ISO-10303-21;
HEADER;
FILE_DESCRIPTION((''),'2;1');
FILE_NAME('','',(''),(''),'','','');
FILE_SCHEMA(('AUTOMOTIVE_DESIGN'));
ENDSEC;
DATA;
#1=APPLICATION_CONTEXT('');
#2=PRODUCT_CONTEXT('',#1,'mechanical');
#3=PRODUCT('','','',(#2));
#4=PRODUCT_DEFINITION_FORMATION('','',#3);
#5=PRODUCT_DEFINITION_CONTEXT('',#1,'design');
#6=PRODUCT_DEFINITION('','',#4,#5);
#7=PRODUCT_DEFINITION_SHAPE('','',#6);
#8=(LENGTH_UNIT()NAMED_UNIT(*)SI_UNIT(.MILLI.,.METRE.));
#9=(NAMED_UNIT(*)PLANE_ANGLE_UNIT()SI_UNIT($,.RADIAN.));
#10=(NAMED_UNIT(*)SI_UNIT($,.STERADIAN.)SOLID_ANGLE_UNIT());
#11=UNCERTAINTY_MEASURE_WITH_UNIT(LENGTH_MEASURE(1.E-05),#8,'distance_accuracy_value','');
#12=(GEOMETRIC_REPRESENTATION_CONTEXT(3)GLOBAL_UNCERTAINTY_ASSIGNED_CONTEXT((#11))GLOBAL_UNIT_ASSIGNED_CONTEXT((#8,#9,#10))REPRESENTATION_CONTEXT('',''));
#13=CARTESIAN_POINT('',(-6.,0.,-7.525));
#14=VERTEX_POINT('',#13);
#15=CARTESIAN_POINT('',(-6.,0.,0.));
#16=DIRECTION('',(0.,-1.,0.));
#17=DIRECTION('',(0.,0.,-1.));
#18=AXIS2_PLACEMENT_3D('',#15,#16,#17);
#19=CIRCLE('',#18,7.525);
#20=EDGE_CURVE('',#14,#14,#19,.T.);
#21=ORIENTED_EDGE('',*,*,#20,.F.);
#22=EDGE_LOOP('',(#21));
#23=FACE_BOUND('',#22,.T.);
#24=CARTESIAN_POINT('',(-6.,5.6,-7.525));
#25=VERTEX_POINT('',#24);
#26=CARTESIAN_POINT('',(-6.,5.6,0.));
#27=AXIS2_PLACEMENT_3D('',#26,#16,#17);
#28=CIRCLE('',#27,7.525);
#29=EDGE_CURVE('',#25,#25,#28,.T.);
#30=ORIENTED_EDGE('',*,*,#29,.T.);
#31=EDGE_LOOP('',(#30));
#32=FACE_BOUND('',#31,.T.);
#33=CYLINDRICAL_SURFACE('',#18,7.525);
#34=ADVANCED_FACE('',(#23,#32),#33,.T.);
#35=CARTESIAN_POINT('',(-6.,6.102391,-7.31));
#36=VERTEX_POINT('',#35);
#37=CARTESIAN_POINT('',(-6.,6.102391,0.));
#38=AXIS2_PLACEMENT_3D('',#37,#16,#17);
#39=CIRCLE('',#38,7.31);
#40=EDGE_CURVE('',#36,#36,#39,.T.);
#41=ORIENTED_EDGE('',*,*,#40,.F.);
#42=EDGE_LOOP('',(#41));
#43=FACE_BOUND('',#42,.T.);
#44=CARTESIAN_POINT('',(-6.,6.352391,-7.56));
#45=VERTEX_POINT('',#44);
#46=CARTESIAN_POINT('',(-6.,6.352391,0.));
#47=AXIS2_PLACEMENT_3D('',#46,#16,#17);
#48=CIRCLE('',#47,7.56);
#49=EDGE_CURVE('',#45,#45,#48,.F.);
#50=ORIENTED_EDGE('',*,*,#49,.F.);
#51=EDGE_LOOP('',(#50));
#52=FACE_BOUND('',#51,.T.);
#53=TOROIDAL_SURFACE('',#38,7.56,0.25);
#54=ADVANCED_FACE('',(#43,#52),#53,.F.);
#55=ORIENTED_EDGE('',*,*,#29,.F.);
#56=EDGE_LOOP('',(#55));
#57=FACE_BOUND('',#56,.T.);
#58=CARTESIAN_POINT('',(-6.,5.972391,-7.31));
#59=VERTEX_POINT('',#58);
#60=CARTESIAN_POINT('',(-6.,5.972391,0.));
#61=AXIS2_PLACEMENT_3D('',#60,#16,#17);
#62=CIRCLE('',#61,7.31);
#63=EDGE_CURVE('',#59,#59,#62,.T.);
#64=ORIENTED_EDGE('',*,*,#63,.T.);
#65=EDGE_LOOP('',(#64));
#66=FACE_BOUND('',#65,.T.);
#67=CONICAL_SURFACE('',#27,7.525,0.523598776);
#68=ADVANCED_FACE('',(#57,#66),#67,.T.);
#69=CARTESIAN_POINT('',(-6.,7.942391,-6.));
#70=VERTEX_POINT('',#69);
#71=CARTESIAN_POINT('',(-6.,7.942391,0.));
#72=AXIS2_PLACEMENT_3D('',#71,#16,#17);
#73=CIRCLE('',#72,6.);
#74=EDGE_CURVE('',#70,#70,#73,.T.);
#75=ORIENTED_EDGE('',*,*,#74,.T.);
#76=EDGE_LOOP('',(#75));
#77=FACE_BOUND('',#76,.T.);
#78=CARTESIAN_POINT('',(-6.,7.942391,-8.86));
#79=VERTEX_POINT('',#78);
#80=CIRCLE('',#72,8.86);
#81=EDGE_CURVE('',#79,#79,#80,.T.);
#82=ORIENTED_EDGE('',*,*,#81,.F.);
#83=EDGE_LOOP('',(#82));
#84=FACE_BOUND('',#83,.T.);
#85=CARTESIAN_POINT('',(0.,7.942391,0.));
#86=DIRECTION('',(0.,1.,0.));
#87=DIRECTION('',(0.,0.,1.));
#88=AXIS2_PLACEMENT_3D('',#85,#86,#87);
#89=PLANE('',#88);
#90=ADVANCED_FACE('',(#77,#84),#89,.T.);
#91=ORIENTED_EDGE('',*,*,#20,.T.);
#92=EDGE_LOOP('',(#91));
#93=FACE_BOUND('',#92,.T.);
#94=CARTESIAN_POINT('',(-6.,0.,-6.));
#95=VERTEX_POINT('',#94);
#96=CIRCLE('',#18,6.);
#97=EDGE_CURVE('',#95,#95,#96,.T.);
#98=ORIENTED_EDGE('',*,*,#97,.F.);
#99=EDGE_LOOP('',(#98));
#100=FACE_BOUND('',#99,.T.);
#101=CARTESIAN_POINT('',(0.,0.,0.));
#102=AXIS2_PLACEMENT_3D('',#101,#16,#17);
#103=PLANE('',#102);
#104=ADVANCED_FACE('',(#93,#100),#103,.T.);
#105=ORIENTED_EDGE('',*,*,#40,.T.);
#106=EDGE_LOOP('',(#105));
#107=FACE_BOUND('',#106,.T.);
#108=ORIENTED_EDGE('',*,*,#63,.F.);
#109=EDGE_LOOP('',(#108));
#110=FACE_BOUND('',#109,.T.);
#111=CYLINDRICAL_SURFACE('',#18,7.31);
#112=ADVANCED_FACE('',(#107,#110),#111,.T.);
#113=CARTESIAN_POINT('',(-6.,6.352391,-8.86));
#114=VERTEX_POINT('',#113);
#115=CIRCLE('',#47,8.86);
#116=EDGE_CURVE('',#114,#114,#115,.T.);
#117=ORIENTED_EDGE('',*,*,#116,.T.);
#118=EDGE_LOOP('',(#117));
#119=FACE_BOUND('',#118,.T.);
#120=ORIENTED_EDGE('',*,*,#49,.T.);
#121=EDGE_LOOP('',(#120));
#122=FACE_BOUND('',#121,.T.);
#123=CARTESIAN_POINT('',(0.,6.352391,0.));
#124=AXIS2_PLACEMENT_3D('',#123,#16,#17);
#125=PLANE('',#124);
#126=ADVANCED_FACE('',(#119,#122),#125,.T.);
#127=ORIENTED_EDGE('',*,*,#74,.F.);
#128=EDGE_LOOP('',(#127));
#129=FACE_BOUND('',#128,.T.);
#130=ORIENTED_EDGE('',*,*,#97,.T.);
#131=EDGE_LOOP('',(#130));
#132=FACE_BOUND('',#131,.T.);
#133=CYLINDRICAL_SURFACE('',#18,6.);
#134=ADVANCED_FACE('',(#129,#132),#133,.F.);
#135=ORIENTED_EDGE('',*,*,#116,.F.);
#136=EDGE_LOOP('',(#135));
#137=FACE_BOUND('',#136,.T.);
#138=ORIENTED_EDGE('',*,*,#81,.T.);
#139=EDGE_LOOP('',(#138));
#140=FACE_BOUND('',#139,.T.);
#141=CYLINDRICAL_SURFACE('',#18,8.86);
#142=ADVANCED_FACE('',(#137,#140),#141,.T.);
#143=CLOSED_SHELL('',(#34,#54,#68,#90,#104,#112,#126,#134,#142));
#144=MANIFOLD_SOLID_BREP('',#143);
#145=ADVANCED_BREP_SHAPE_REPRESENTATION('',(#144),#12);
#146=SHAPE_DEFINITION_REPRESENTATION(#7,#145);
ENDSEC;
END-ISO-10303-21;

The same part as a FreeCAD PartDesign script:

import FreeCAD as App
import Part
import Sketcher
Q = App.Units.Quantity


def edges_at(feature, points):
    """Names of the edges that pass closest to the given points."""
    edges = feature.Shape.Edges
    near = lambda p: min(range(len(edges)), key=lambda i: edges[i].distToShape(Part.Vertex(*p))[0])
    return sorted({f"Edge{near(p) + 1}" for p in points})


def add_polygon(sketch, points):
    """Adds a closed chain of lines whose ends are joined by coincident constraints."""
    first, n = sketch.GeometryCount, len(points)
    for a, b in zip(points, points[1:] + points[:1]):
        sketch.addGeometry(Part.LineSegment(App.Vector(*a, 0), App.Vector(*b, 0)), False)
    for i in range(n):
        sketch.addConstraint(Sketcher.Constraint("Coincident", first + i, 2, first + (i + 1) % n, 1))

doc = App.newDocument("Part")
body = doc.addObject("PartDesign::Body", "Body")

sketch1 = body.newObject("Sketcher::SketchObject", "Sketch")
sketch1.AttachmentSupport = (doc.getObject("XY_Plane"), [""])
sketch1.MapMode = "FlatFace"
add_polygon(sketch1, [(0, 0), (1.52, 0), (1.52, 5.6), (1.31, 5.97), (1.31, 6.35), (2.86, 6.35), (2.86, 7.94), (0, 7.94)])
sketch1.addGeometry(Part.LineSegment(App.Vector(-6, 0, 0), App.Vector(-6, 7.94, 0)), True)
sketch1.addConstraint(Sketcher.Constraint("Horizontal", 0))
sketch1.addConstraint(Sketcher.Constraint("Vertical", 1))
sketch1.addConstraint(Sketcher.Constraint("Vertical", 3))
sketch1.addConstraint(Sketcher.Constraint("Horizontal", 4))
sketch1.addConstraint(Sketcher.Constraint("Vertical", 5))
sketch1.addConstraint(Sketcher.Constraint("Horizontal", 6))
sketch1.addConstraint(Sketcher.Constraint("Vertical", 7))
sketch1.addConstraint(Sketcher.Constraint("Vertical", 8))
sketch1.addConstraint(Sketcher.Constraint("Coincident", 7, 2, -1, 1))
sketch1.addConstraint(Sketcher.Constraint("PointOnObject", 8, 1, -1))
sketch1.addConstraint(Sketcher.Constraint("Horizontal", 6, 2, 8, 2))
sketch1.addConstraint(Sketcher.Constraint("Angle", 2, Q("120 deg")))
sketch1.addConstraint(Sketcher.Constraint("DistanceY", 1, 1, 1, 2, 5.6))
sketch1.addConstraint(Sketcher.Constraint("DistanceX", 8, 1, -1, 1, 6.0))
sketch1.addConstraint(Sketcher.Constraint("DistanceX", 4, 1, 4, 2, 1.55))
sketch1.addConstraint(Sketcher.Constraint("DistanceX", 6, 2, 6, 1, 2.86))
sketch1.addConstraint(Sketcher.Constraint("DistanceY", 3, 1, 3, 2, 0.38))
sketch1.addConstraint(Sketcher.Constraint("DistanceY", 5, 1, 5, 2, 1.59))
sketch1.addConstraint(Sketcher.Constraint("Distance", 2, 0.43))
revolution = body.newObject("PartDesign::Revolution", "Revolution")
revolution.Profile = sketch1
revolution.ReferenceAxis = (sketch1, ["Axis0"])
revolution.Angle = 360
doc.recompute()

fillet = body.newObject("PartDesign::Fillet", "Fillet")
fillet.Base = (revolution, edges_at(revolution, [(-6, 6.352, 7.31)]))
fillet.Radius = 0.25

doc.recompute()
